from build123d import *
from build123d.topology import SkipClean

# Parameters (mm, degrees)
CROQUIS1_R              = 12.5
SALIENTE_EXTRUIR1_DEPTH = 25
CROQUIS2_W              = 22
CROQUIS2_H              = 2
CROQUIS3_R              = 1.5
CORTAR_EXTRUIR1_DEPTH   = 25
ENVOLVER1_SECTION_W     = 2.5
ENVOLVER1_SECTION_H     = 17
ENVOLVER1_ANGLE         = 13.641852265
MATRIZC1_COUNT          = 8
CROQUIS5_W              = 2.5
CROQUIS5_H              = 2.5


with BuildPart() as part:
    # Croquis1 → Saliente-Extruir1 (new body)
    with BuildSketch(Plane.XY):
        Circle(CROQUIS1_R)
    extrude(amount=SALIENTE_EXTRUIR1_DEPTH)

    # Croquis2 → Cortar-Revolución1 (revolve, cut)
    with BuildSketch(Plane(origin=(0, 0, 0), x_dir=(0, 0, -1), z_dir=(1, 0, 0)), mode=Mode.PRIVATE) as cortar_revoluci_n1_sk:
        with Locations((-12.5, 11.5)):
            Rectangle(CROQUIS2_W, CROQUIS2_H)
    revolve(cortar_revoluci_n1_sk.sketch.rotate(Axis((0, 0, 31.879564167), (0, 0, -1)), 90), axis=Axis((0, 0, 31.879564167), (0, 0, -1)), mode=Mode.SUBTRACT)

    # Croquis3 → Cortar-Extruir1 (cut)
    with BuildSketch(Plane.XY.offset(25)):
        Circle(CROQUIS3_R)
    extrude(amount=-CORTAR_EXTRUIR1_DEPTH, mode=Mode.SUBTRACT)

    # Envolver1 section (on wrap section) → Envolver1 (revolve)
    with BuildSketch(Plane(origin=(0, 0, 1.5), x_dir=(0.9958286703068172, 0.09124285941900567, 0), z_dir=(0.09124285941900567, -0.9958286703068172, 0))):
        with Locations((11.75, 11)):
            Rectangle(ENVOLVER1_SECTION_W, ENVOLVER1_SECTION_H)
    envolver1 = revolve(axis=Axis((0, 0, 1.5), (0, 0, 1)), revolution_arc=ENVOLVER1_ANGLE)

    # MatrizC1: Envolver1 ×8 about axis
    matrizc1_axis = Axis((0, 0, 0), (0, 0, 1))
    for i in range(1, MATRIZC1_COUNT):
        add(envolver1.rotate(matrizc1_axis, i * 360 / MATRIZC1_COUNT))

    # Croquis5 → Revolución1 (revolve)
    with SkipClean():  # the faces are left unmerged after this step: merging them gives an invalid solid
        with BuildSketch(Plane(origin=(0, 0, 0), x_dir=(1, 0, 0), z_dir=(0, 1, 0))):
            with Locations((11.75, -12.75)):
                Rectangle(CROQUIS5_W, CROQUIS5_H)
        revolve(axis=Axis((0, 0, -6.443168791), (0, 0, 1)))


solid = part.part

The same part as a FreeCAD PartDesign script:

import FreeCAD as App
import Part
import Sketcher

V = App.Vector

doc = App.newDocument("Part")
body = doc.addObject("PartDesign::Body", "Body")

# Sketch on XY plane
sketch1 = body.newObject("Sketcher::SketchObject", "Sketch")
sketch1.AttachmentSupport = (doc.getObject("XY_Plane"), [""])
sketch1.MapMode = "FlatFace"
sketch1.addGeometry(Part.Circle(V(0, 0, 0), V(0, 0, 1), 12.5), False)
sketch1.addConstraint(Sketcher.Constraint("Coincident", 0, 3, -1, 1))
sketch1.addConstraint(Sketcher.Constraint("Diameter", 0, 25.0))
pad1 = body.newObject("PartDesign::Pad", "Pad")
pad1.Profile = sketch1
pad1.Length = 25

# Sketch on YZ plane
sketch2 = body.newObject("Sketcher::SketchObject", "Sketch001")
sketch2.AttachmentSupport = (doc.getObject("YZ_Plane"), [""])
sketch2.MapMode = "FlatFace"
sketch2.addGeometry(Part.LineSegment(V(12.5, 23.5, 0), V(10.5, 23.5, 0)), False)
sketch2.addGeometry(Part.LineSegment(V(10.5, 23.5, 0), V(10.5, 1.5, 0)), False)
sketch2.addGeometry(Part.LineSegment(V(10.5, 1.5, 0), V(12.5, 1.5, 0)), False)
sketch2.addGeometry(Part.LineSegment(V(12.5, 1.5, 0), V(12.5, 23.5, 0)), False)
sketch2.addConstraint(Sketcher.Constraint("Coincident", 0, 2, 1, 1))
sketch2.addConstraint(Sketcher.Constraint("Coincident", 1, 2, 2, 1))
sketch2.addConstraint(Sketcher.Constraint("Coincident", 2, 2, 3, 1))
sketch2.addConstraint(Sketcher.Constraint("Coincident", 3, 2, 0, 1))
sketch2.addConstraint(Sketcher.Constraint("Horizontal", 0))
sketch2.addConstraint(Sketcher.Constraint("Vertical", 1))
sketch2.addConstraint(Sketcher.Constraint("Horizontal", 2))
sketch2.addConstraint(Sketcher.Constraint("Vertical", 3))
sketch2.addConstraint(Sketcher.Constraint("DistanceX", 0, 2, 0, 1, 2.0))
sketch2.addConstraint(Sketcher.Constraint("DistanceY", 1, 2, 1, 1, 22.0))
sketch2.addConstraint(Sketcher.Constraint("DistanceX", -1, 1, 0, 2, 10.5))
sketch2.addConstraint(Sketcher.Constraint("DistanceY", -1, 1, 0, 2, 23.5))
groove = body.newObject("PartDesign::Groove", "Groove")
groove.Profile = sketch2
groove.ReferenceAxis = (sketch2, ["V_Axis"])
groove.Angle = 360

# Sketch on XY plane
sketch3 = body.newObject("Sketcher::SketchObject", "Sketch002")
sketch3.AttachmentSupport = (doc.getObject("XY_Plane"), [""])
sketch3.MapMode = "FlatFace"
sketch3.AttachmentOffset = App.Placement(V(0, 0, 25), App.Rotation())
sketch3.addGeometry(Part.Circle(V(0, 0, 0), V(0, 0, 1), 1.5), False)
sketch3.addConstraint(Sketcher.Constraint("Coincident", 0, 3, -1, 1))
sketch3.addConstraint(Sketcher.Constraint("Diameter", 0, 3.0))
pocket1 = body.newObject("PartDesign::Pocket", "Pocket")
pocket1.Profile = sketch3
pocket1.Length = 25

# Sketch on an angled plane
sketch4 = body.newObject("Sketcher::SketchObject", "Sketch003")
sketch4.Placement = App.Placement(V(0, 0, 1.5), App.Rotation(V(0.99582867, 0.091242859, 0), V(0, 0, 0.999999999), V(0.091242859, -0.99582867, 0), "ZXY"))
sketch4.addGeometry(Part.LineSegment(V(10.5, 19.5, 0), V(10.5, 2.5, 0)), False)
sketch4.addGeometry(Part.LineSegment(V(10.5, 2.5, 0), V(13, 2.5, 0)), False)
sketch4.addGeometry(Part.LineSegment(V(13, 2.5, 0), V(13, 19.5, 0)), False)
sketch4.addGeometry(Part.LineSegment(V(13, 19.5, 0), V(10.5, 19.5, 0)), False)
sketch4.addConstraint(Sketcher.Constraint("Coincident", 0, 2, 1, 1))
sketch4.addConstraint(Sketcher.Constraint("Coincident", 1, 2, 2, 1))
sketch4.addConstraint(Sketcher.Constraint("Coincident", 2, 2, 3, 1))
sketch4.addConstraint(Sketcher.Constraint("Coincident", 3, 2, 0, 1))
sketch4.addConstraint(Sketcher.Constraint("Vertical", 0))
sketch4.addConstraint(Sketcher.Constraint("Horizontal", 1))
sketch4.addConstraint(Sketcher.Constraint("Vertical", 2))
sketch4.addConstraint(Sketcher.Constraint("Horizontal", 3))
sketch4.addConstraint(Sketcher.Constraint("DistanceY", 0, 2, 0, 1, 17.0))
sketch4.addConstraint(Sketcher.Constraint("DistanceX", 1, 1, 1, 2, 2.5))
sketch4.addConstraint(Sketcher.Constraint("DistanceX", -1, 1, 1, 2, 13.0))
sketch4.addConstraint(Sketcher.Constraint("DistanceY", -1, 1, 0, 2, 2.5))
revolution = body.newObject("PartDesign::Revolution", "Revolution")
revolution.Profile = sketch4
revolution.ReferenceAxis = (sketch4, ["V_Axis"])
revolution.Angle = 13.641852
doc.recompute()

polarpattern = body.newObject("PartDesign::PolarPattern", "PolarPattern")
polarpattern.Originals = [revolution]
polarpattern.Axis = (doc.getObject("Z_Axis"), [""])
polarpattern.Angle = 360
polarpattern.Occurrences = 8
body.Tip = polarpattern

# Sketch on XZ plane
sketch5 = body.newObject("Sketcher::SketchObject", "Sketch004")
sketch5.AttachmentSupport = (doc.getObject("XZ_Plane"), [""])
sketch5.MapMode = "FlatFace"
sketch5.addGeometry(Part.LineSegment(V(10.5, 11.5, 0), V(10.5, 14, 0)), False)
sketch5.addGeometry(Part.LineSegment(V(10.5, 14, 0), V(13, 14, 0)), False)
sketch5.addGeometry(Part.LineSegment(V(13, 14, 0), V(13, 11.5, 0)), False)
sketch5.addGeometry(Part.LineSegment(V(13, 11.5, 0), V(10.5, 11.5, 0)), False)
sketch5.addConstraint(Sketcher.Constraint("Coincident", 0, 2, 1, 1))
sketch5.addConstraint(Sketcher.Constraint("Coincident", 1, 2, 2, 1))
sketch5.addConstraint(Sketcher.Constraint("Coincident", 2, 2, 3, 1))
sketch5.addConstraint(Sketcher.Constraint("Coincident", 3, 2, 0, 1))
sketch5.addConstraint(Sketcher.Constraint("Vertical", 0))
sketch5.addConstraint(Sketcher.Constraint("Horizontal", 1))
sketch5.addConstraint(Sketcher.Constraint("Vertical", 2))
sketch5.addConstraint(Sketcher.Constraint("Horizontal", 3))
sketch5.addConstraint(Sketcher.Constraint("Equal", 3, 0))
sketch5.addConstraint(Sketcher.Constraint("DistanceX", 1, 1, 1, 2, 2.5))
sketch5.addConstraint(Sketcher.Constraint("DistanceY", -1, 1, 0, 2, 14.0))
sketch5.addConstraint(Sketcher.Constraint("DistanceX", -1, 1, 1, 2, 13.0))
revolution2 = body.newObject("PartDesign::Revolution", "Revolution001")
revolution2.Profile = sketch5
revolution2.ReferenceAxis = (sketch5, ["V_Axis"])
revolution2.Angle = 360

doc.recompute()
